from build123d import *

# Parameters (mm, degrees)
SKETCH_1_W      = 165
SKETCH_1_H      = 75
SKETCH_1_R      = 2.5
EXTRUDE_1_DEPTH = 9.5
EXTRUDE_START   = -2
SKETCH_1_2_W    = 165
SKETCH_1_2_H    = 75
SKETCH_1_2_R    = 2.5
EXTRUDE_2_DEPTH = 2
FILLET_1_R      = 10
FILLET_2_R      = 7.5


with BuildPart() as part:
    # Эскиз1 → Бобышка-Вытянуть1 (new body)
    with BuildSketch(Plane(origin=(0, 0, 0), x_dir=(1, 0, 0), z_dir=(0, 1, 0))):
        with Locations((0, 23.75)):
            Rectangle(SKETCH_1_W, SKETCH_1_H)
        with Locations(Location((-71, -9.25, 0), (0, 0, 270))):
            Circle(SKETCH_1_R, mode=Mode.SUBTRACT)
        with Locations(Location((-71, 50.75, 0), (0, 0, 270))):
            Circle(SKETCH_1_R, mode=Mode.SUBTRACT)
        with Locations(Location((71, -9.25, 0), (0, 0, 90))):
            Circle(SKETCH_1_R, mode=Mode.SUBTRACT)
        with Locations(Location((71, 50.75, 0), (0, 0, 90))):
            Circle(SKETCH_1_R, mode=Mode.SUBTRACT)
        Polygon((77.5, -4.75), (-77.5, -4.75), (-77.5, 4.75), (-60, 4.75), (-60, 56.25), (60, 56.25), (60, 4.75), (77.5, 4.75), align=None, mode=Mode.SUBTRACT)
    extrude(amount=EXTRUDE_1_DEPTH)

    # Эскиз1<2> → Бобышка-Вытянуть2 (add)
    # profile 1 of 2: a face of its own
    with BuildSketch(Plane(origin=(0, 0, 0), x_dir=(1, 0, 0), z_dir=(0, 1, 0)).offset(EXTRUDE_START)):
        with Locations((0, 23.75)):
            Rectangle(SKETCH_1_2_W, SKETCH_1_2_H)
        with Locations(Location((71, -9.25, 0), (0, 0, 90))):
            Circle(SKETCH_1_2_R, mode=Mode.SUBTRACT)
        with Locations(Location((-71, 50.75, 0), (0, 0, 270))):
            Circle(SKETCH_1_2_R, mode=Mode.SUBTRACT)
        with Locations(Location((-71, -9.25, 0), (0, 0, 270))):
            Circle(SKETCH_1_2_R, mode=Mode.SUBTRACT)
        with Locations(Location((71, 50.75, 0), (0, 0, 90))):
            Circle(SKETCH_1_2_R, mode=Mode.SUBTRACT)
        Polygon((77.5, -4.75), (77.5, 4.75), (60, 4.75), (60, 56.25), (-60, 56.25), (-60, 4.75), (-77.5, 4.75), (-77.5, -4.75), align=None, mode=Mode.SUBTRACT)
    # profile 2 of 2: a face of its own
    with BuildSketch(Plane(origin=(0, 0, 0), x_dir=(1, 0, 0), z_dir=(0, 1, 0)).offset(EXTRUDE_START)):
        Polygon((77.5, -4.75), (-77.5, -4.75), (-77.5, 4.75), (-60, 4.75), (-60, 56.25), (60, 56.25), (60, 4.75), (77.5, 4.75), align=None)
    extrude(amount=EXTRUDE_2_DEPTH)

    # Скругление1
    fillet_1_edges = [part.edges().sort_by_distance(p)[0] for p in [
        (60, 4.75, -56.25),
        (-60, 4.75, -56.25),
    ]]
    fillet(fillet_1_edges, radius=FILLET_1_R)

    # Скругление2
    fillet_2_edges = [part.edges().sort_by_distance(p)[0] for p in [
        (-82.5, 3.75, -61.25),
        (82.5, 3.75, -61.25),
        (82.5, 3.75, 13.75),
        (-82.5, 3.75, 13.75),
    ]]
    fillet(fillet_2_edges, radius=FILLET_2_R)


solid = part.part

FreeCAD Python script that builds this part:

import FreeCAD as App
import Part
import Sketcher
Q = App.Units.Quantity


def edges_at(feature, points):
    """Names of the edges that pass closest to the given points."""
    edges = feature.Shape.Edges
    near = lambda p: min(range(len(edges)), key=lambda i: edges[i].distToShape(Part.Vertex(*p))[0])
    return sorted({f"Edge{near(p) + 1}" for p in points})


def add_polygon(sketch, points):
    """Adds a closed chain of lines whose ends are joined by coincident constraints."""
    first, n = sketch.GeometryCount, len(points)
    for a, b in zip(points, points[1:] + points[:1]):
        sketch.addGeometry(Part.LineSegment(App.Vector(*a, 0), App.Vector(*b, 0)), False)
    for i in range(n):
        sketch.addConstraint(Sketcher.Constraint("Coincident", first + i, 2, first + (i + 1) % n, 1))

doc = App.newDocument("Part")
params = doc.addObject("Spreadsheet::Sheet", "Params")
for row, (alias, value) in enumerate([
    ("sketch1_diameter", "5 mm"),
    ("sketch1_width", "165 mm"),
    ("sketch1_width2", "155 mm"),
    ("sketch1_width3", "120 mm"),
    ("sketch1_height", "75 mm"),
    ("pad1_length", "9.5 mm"),
    ("sketch2_diameter", "5 mm"),
    ("sketch2_width", "165 mm"),
    ("sketch2_height", "75 mm"),
    ("pad2_length", "2 mm"),
    ("fillet_radius", "10 mm"),
    ("fillet2_radius", "7.5 mm"),
], start=1):
    params.set(f"A{row}", alias)
    params.set(f"B{row}", "=" + value)
    params.setAlias(f"B{row}", alias)

body = doc.addObject("PartDesign::Body", "Body")

sketch1 = body.newObject("Sketcher::SketchObject", "Sketch")
sketch1.AttachmentSupport = (doc.getObject("XZ_Plane"), [""])
sketch1.MapMode = "FlatFace"
add_polygon(sketch1, [(-82.5, -61.2), (-82.5, 13.8), (82.5, 13.8), (82.5, -61.2)])
sketch1.addGeometry(Part.Circle(App.Vector(-71, 9.2, 0), App.Vector(0, 0, 1), 2.5), False)
sketch1.addGeometry(Part.Circle(App.Vector(71, 9.2, 0), App.Vector(0, 0, 1), 2.5), False)
sketch1.addGeometry(Part.Circle(App.Vector(-71, -50.8, 0), App.Vector(0, 0, 1), 2.5), False)
add_polygon(sketch1, [(77.5, -4.8), (77.5, 4.8), (-77.5, 4.8), (-77.5, -4.8), (-60, -4.8), (-60, -56.2), (60, -56.2), (60, -4.8)])
sketch1.addGeometry(Part.Circle(App.Vector(71, -50.8, 0), App.Vector(0, 0, 1), 2.5), False)
sketch1.addConstraint(Sketcher.Constraint("Vertical", 0))
sketch1.addConstraint(Sketcher.Constraint("Horizontal", 1))
sketch1.addConstraint(Sketcher.Constraint("Vertical", 2))
sketch1.addConstraint(Sketcher.Constraint("Horizontal", 3))
sketch1.addConstraint(Sketcher.Constraint("Vertical", 7))
sketch1.addConstraint(Sketcher.Constraint("Horizontal", 8))
sketch1.addConstraint(Sketcher.Constraint("Vertical", 9))
sketch1.addConstraint(Sketcher.Constraint("Horizontal", 10))
sketch1.addConstraint(Sketcher.Constraint("Vertical", 11))
sketch1.addConstraint(Sketcher.Constraint("Horizontal", 12))
sketch1.addConstraint(Sketcher.Constraint("Vertical", 13))
sketch1.addConstraint(Sketcher.Constraint("Horizontal", 14))
sketch1.addConstraint(Sketcher.Constraint("Equal", 4, 5))
sketch1.addConstraint(Sketcher.Constraint("Equal", 5, 6))
sketch1.addConstraint(Sketcher.Constraint("Equal", 6, 15))
sketch1.addConstraint(Sketcher.Constraint("Symmetric", 7, 2, 9, 2, -1, 1))
sketch1.addConstraint(Sketcher.Constraint("Symmetric", 4, 3, 5, 3, -2))
sketch1.addConstraint(Sketcher.Constraint("Symmetric", 6, 3, 15, 3, -2))
sketch1.addConstraint(Sketcher.Constraint("Symmetric", 10, 2, 13, 2, -2))
sketch1.addConstraint(Sketcher.Constraint("Vertical", 4, 3, 6, 3))
sketch1.addConstraint(Sketcher.Constraint("Diameter", 4, Q("5 mm")))
sketch1.addConstraint(Sketcher.Constraint("DistanceX", 1, 1, 1, 2, Q("165 mm")))
sketch1.addConstraint(Sketcher.Constraint("DistanceX", 8, 2, 8, 1, Q("155 mm")))
sketch1.addConstraint(Sketcher.Constraint("DistanceX", 12, 1, 12, 2, Q("120 mm")))
sketch1.addConstraint(Sketcher.Constraint("DistanceY", 0, 1, 0, 2, Q("75 mm")))
sketch1.addConstraint(Sketcher.Constraint("DistanceY", 7, 1, 7, 2, Q("9.5 mm")))
sketch1.addConstraint(Sketcher.Constraint("DistanceY", 11, 2, 11, 1, Q("51.5 mm")))
sketch1.addConstraint(Sketcher.Constraint("DistanceX", 4, 3, -1, 1, Q("71 mm")))
sketch1.addConstraint(Sketcher.Constraint("DistanceY", 6, 3, 4, 3, Q("60 mm")))
sketch1.addConstraint(Sketcher.Constraint("DistanceX", 7, 2, 1, 2, Q("5 mm")))
sketch1.addConstraint(Sketcher.Constraint("DistanceY", 7, 2, 1, 2, Q("9 mm")))
sketch1.addConstraint(Sketcher.Constraint("DistanceY", 9, 2, 4, 3, Q("14 mm")))
sketch1.setExpression("Constraints[32]", "Params.sketch1_diameter")
sketch1.setExpression("Constraints[33]", "Params.sketch1_width")
sketch1.setExpression("Constraints[34]", "Params.sketch1_width2")
sketch1.setExpression("Constraints[35]", "Params.sketch1_width3")
sketch1.setExpression("Constraints[36]", "Params.sketch1_height")
pad1 = body.newObject("PartDesign::Pad", "Pad")
pad1.Profile = sketch1
pad1.setExpression("Length", "Params.pad1_length")
pad1.Reversed = True

sketch2 = body.newObject("Sketcher::SketchObject", "Sketch001")
sketch2.AttachmentSupport = (doc.getObject("XZ_Plane"), [""])
sketch2.MapMode = "FlatFace"
sketch2.AttachmentOffset = App.Placement(App.Vector(0, 0, 2), App.Rotation())
add_polygon(sketch2, [(-82.5, -61.2), (-82.5, 13.8), (82.5, 13.8), (82.5, -61.2)])
sketch2.addGeometry(Part.Circle(App.Vector(-71, 9.2, 0), App.Vector(0, 0, 1), 2.5), False)
sketch2.addGeometry(Part.Circle(App.Vector(71, 9.2, 0), App.Vector(0, 0, 1), 2.5), False)
sketch2.addGeometry(Part.Circle(App.Vector(-71, -50.8, 0), App.Vector(0, 0, 1), 2.5), False)
sketch2.addGeometry(Part.Circle(App.Vector(71, -50.8, 0), App.Vector(0, 0, 1), 2.5), False)
sketch2.addConstraint(Sketcher.Constraint("Vertical", 0))
sketch2.addConstraint(Sketcher.Constraint("Horizontal", 1))
sketch2.addConstraint(Sketcher.Constraint("Vertical", 2))
sketch2.addConstraint(Sketcher.Constraint("Horizontal", 3))
sketch2.addConstraint(Sketcher.Constraint("Equal", 4, 5))
sketch2.addConstraint(Sketcher.Constraint("Equal", 5, 6))
sketch2.addConstraint(Sketcher.Constraint("Equal", 6, 7))
sketch2.addConstraint(Sketcher.Constraint("Symmetric", 4, 3, 5, 3, -2))
sketch2.addConstraint(Sketcher.Constraint("Symmetric", 6, 3, 7, 3, -2))
sketch2.addConstraint(Sketcher.Constraint("Vertical", 4, 3, 6, 3))
sketch2.addConstraint(Sketcher.Constraint("Diameter", 4, Q("5 mm")))
sketch2.addConstraint(Sketcher.Constraint("DistanceX", 1, 1, 1, 2, Q("165 mm")))
sketch2.addConstraint(Sketcher.Constraint("DistanceY", 0, 1, 0, 2, Q("75 mm")))
sketch2.addConstraint(Sketcher.Constraint("DistanceX", 4, 3, -1, 1, Q("71 mm")))
sketch2.addConstraint(Sketcher.Constraint("DistanceY", 6, 3, 4, 3, Q("60 mm")))
sketch2.addConstraint(Sketcher.Constraint("DistanceX", 0, 2, -1, 1, Q("82.5 mm")))
sketch2.addConstraint(Sketcher.Constraint("DistanceY", 4, 3, 0, 2, Q("4.5 mm")))
sketch2.addConstraint(Sketcher.Constraint("DistanceY", -1, 1, 4, 3, Q("9.25 mm")))
sketch2.setExpression("Constraints[14]", "Params.sketch2_diameter")
sketch2.setExpression("Constraints[15]", "Params.sketch2_width")
sketch2.setExpression("Constraints[16]", "Params.sketch2_height")
pad2 = body.newObject("PartDesign::Pad", "Pad001")
pad2.Profile = sketch2
pad2.setExpression("Length", "Params.pad2_length")
pad2.Reversed = True
doc.recompute()

fillet = body.newObject("PartDesign::Fillet", "Fillet")
fillet.Base = (pad2, edges_at(pad2, [(60, 4.75, -56.25), (-60, 4.75, -56.25)]))
fillet.setExpression("Radius", "Params.fillet_radius")
doc.recompute()

fillet2 = body.newObject("PartDesign::Fillet", "Fillet001")
fillet2.Base = (fillet, edges_at(fillet, [
    (-82.5, 3.75, -61.25),
    (82.5, 3.75, -61.25),
    (82.5, 3.75, 13.75),
    (-82.5, 3.75, 13.75),
]))
fillet2.setExpression("Radius", "Params.fillet2_radius")

doc.recompute()
